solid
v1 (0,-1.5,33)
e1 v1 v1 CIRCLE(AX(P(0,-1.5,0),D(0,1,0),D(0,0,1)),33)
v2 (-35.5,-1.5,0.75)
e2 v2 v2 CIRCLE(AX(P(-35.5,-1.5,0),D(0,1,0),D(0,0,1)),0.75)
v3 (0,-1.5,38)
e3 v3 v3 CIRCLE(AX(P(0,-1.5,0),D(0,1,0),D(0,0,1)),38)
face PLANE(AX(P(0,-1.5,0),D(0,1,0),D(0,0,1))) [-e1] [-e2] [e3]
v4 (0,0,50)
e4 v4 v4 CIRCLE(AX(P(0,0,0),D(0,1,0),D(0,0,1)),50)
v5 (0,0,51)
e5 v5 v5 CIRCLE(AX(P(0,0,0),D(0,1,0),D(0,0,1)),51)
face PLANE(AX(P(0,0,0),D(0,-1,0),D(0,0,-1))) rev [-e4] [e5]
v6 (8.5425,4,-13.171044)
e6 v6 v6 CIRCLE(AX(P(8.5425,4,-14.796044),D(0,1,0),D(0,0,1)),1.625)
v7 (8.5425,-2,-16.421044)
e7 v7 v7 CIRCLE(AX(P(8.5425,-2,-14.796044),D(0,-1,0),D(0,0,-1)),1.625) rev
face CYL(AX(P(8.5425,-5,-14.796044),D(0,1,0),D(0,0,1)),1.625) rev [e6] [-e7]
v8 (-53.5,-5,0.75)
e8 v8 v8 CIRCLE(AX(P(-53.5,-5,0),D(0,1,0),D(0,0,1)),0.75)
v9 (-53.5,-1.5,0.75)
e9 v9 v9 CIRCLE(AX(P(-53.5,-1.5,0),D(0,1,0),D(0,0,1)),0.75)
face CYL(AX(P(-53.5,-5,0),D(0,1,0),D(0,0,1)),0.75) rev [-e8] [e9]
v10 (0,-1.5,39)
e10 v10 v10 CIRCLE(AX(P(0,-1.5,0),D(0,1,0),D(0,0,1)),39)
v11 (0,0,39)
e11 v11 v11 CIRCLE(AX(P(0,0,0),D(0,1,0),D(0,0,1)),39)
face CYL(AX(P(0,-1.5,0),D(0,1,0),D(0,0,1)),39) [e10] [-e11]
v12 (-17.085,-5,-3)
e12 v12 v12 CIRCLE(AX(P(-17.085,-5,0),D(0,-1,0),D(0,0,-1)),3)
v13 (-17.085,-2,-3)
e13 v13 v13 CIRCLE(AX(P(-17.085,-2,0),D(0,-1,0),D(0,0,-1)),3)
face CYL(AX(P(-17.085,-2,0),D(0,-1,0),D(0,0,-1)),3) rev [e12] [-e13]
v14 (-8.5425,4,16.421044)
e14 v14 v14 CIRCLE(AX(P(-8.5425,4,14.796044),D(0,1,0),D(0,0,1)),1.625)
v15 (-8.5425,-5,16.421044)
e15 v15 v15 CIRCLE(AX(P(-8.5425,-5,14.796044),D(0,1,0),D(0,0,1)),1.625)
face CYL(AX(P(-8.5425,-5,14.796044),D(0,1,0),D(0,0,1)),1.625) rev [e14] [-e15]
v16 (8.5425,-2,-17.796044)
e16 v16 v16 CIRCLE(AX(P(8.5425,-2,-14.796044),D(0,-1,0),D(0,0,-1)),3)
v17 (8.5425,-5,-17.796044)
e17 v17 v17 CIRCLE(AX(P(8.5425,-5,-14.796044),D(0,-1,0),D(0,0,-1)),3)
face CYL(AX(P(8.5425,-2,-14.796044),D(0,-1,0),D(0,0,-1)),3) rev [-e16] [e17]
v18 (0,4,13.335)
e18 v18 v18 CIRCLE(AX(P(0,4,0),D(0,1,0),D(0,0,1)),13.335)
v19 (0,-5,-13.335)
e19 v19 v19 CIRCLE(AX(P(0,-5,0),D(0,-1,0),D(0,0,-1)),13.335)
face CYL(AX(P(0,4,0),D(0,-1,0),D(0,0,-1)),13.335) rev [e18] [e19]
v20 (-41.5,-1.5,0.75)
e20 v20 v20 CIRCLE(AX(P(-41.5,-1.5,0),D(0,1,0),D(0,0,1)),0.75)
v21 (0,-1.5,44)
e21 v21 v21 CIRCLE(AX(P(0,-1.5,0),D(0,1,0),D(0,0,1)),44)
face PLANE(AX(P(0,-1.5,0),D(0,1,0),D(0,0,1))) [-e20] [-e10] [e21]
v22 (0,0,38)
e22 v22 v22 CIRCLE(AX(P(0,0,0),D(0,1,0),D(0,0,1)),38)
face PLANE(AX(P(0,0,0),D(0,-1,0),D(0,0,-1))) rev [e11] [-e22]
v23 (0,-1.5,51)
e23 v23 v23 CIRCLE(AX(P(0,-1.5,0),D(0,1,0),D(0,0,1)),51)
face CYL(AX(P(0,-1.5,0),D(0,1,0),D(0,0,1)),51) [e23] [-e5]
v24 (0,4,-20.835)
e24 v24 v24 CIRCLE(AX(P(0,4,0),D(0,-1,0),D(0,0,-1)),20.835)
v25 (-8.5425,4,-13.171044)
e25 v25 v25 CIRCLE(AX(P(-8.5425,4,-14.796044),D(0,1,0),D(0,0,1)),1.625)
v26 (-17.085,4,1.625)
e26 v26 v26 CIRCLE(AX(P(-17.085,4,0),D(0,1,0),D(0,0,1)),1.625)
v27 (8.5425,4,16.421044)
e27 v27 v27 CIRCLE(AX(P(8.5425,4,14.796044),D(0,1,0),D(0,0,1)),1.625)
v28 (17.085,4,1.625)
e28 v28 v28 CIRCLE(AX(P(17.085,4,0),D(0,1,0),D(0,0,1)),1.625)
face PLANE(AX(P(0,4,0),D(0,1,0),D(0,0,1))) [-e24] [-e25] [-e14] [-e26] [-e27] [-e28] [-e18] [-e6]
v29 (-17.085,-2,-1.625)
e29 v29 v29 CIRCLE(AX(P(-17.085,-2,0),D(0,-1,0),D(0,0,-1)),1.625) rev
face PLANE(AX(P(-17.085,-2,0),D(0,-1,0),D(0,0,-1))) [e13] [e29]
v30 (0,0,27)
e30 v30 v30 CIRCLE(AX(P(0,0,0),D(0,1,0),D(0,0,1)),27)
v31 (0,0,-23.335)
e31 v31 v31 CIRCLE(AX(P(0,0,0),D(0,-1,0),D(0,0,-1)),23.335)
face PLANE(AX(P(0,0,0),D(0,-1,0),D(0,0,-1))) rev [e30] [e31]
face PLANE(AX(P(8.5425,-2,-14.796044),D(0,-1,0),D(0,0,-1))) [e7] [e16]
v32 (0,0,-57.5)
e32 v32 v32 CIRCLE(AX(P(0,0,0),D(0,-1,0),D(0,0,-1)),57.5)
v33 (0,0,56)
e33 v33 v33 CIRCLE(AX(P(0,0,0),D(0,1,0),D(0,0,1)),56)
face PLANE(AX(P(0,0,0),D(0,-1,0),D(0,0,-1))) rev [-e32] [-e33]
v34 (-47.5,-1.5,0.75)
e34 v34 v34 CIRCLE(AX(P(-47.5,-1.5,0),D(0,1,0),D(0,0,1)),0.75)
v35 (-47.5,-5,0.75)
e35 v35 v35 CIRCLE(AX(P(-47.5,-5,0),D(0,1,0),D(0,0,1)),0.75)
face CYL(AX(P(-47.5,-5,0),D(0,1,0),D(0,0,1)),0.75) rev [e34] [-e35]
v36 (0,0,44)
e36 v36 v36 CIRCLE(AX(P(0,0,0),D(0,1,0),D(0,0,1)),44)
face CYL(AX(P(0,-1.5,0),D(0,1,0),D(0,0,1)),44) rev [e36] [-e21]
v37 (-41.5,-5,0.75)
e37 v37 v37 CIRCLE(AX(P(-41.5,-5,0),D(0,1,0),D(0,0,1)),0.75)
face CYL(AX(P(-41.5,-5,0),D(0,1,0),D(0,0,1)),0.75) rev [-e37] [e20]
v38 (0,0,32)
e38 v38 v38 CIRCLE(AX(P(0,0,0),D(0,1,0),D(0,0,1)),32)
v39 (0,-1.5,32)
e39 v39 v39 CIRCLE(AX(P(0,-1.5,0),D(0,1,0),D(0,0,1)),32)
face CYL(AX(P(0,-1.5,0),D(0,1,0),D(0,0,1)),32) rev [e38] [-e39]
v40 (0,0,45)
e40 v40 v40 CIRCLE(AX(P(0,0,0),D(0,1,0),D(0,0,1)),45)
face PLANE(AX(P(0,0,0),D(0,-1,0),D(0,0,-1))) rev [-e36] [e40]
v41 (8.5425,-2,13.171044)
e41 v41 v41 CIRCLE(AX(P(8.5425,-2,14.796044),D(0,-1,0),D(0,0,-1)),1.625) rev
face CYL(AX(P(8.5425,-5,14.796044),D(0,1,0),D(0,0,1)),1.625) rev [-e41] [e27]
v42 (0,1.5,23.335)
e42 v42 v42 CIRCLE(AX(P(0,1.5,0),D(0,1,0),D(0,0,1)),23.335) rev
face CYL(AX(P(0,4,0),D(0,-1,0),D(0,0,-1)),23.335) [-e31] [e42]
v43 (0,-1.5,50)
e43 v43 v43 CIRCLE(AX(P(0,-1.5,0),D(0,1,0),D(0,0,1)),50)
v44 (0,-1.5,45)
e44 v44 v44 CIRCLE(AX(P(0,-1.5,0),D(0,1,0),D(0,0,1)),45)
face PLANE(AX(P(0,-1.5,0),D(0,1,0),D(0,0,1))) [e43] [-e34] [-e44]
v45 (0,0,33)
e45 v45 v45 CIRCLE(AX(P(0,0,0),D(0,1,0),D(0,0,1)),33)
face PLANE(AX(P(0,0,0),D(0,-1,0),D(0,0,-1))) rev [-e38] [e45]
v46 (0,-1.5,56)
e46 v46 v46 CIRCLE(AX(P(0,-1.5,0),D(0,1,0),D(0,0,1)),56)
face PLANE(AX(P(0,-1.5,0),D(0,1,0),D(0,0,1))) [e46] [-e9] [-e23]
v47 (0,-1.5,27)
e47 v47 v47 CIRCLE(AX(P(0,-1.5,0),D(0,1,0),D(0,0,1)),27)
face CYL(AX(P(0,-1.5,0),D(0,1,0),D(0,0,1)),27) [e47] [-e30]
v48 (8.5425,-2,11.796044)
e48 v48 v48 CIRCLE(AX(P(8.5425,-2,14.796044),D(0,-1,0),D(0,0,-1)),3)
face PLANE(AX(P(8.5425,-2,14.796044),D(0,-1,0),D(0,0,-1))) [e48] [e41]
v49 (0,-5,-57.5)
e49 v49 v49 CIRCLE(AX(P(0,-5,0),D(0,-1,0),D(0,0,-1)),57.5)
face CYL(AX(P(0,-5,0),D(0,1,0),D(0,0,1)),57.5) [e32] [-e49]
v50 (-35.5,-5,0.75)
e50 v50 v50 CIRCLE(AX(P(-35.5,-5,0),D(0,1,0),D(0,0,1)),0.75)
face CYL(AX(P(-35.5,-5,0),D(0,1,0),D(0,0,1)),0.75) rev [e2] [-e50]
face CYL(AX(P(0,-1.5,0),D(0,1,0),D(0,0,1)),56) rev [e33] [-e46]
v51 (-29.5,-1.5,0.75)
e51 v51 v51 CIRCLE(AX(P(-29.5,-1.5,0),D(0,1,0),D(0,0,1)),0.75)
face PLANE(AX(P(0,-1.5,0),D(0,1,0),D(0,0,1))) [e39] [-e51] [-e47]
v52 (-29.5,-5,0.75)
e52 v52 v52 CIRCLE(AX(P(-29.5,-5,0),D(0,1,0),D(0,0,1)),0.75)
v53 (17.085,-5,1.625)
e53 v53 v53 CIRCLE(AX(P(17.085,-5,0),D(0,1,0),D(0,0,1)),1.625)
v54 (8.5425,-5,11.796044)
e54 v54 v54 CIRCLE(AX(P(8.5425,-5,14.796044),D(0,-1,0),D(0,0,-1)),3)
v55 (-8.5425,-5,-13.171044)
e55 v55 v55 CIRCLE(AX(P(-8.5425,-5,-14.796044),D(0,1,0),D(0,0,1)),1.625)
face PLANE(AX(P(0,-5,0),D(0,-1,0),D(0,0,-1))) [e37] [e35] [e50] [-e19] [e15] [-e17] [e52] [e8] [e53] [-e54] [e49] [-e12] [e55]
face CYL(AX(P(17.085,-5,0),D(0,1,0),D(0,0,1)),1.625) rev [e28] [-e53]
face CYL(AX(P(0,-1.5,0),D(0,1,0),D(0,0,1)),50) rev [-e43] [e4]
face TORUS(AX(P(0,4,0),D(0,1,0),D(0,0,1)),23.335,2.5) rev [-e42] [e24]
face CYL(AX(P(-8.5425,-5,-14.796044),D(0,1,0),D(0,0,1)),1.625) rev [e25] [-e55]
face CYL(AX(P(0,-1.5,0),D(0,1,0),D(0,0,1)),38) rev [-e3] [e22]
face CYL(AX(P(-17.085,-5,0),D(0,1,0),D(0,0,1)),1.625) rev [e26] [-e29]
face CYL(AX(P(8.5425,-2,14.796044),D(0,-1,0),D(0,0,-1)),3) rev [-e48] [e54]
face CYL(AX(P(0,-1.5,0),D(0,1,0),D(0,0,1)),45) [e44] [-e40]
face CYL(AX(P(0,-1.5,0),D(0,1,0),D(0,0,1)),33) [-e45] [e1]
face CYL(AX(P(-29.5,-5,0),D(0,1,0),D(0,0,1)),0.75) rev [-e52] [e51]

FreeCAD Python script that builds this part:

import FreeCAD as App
import Part
import Sketcher

V = App.Vector

doc = App.newDocument("Part")
body = doc.addObject("PartDesign::Body", "Body")

# Sketch on XZ plane
sketch1 = body.newObject("Sketcher::SketchObject", "Sketch")
sketch1.AttachmentSupport = (doc.getObject("XZ_Plane"), [""])
sketch1.MapMode = "FlatFace"
sketch1.addGeometry([
    Part.Circle(V(0, 0, 0), V(0, 0, 1), 23),
    Part.Circle(V(0, 0, 0), V(0, 0, 1), 13),
], False)
sketch1.addConstraint([
    Sketcher.Constraint("Coincident", 0, 3, -1, 1),
    Sketcher.Constraint("Coincident", 1, 3, -1, 1),
    Sketcher.Constraint("Diameter", 0, 46.67),
    Sketcher.Constraint("Diameter", 1, 26.67),
])
pad1 = body.newObject("PartDesign::Pad", "Pad")
pad1.Profile = sketch1
pad1.Length = 4
pad1.Reversed = True

# Sketch on XZ plane
sketch2 = body.newObject("Sketcher::SketchObject", "Sketch001")
sketch2.AttachmentSupport = (doc.getObject("XZ_Plane"), [""])
sketch2.MapMode = "FlatFace"
sketch2.addGeometry([
    Part.Circle(V(0, 0, 0), V(0, 0, 1), 58),
    Part.Circle(V(0, 0, 0), V(0, 0, 1), 13),
], False)
sketch2.addConstraint([
    Sketcher.Constraint("Coincident", 0, 3, -1, 1),
    Sketcher.Constraint("Coincident", 1, 3, -1, 1),
    Sketcher.Constraint("Diameter", 0, 115.0),
    Sketcher.Constraint("Diameter", 1, 26.67),
])
pad2 = body.newObject("PartDesign::Pad", "Pad001")
pad2.Profile = sketch2
pad2.Length = 5

# Sketch on XZ plane
sketch3 = body.newObject("Sketcher::SketchObject", "Sketch002")
sketch3.AttachmentSupport = (doc.getObject("XZ_Plane"), [""])
sketch3.MapMode = "FlatFace"
sketch3.addGeometry([
    Part.Circle(V(0, 0, 0), V(0, 0, 1), 56),  # 0
    Part.Circle(V(0, 0, 0), V(0, 0, 1), 51),  # 1
    Part.Circle(V(0, 0, 0), V(0, 0, 1), 50),  # 2
    Part.Circle(V(0, 0, 0), V(0, 0, 1), 45),  # 3
    Part.Circle(V(0, 0, 0), V(0, 0, 1), 44),  # 4
    Part.Circle(V(0, 0, 0), V(0, 0, 1), 39),  # 5
    Part.Circle(V(0, 0, 0), V(0, 0, 1), 38),  # 6
    Part.Circle(V(0, 0, 0), V(0, 0, 1), 33),  # 7
    Part.Circle(V(0, 0, 0), V(0, 0, 1), 32),  # 8
    Part.Circle(V(0, 0, 0), V(0, 0, 1), 27),  # 9
], False)
sketch3.addConstraint([
    Sketcher.Constraint("Coincident", 0, 3, -1, 1),
    Sketcher.Constraint("Coincident", 1, 3, -1, 1),
    Sketcher.Constraint("Coincident", 2, 3, -1, 1),
    Sketcher.Constraint("Coincident", 3, 3, -1, 1),
    Sketcher.Constraint("Coincident", 4, 3, -1, 1),
    Sketcher.Constraint("Coincident", 5, 3, -1, 1),
    Sketcher.Constraint("Coincident", 6, 3, -1, 1),
    Sketcher.Constraint("Coincident", 7, 3, -1, 1),
    Sketcher.Constraint("Coincident", 8, 3, -1, 1),
    Sketcher.Constraint("Coincident", 9, 3, -1, 1),
    Sketcher.Constraint("Diameter", 0, 112.0),
    Sketcher.Constraint("Diameter", 1, 102.0),
    Sketcher.Constraint("Diameter", 2, 100.0),
    Sketcher.Constraint("Diameter", 3, 90.0),
    Sketcher.Constraint("Diameter", 4, 88.0),
    Sketcher.Constraint("Diameter", 5, 78.0),
    Sketcher.Constraint("Diameter", 6, 76.0),
    Sketcher.Constraint("Diameter", 7, 66.0),
    Sketcher.Constraint("Diameter", 8, 64.0),
    Sketcher.Constraint("Diameter", 9, 54.0),
])
pocket1 = body.newObject("PartDesign::Pocket", "Pocket")
pocket1.Profile = sketch3
pocket1.Length = 1.5
pocket1.Reversed = True

# Sketch on XY plane
sketch4 = body.newObject("Sketcher::SketchObject", "Sketch003")
sketch4.AttachmentSupport = (doc.getObject("XY_Plane"), [""])
sketch4.MapMode = "FlatFace"
sketch4.addGeometry(Part.Circle(V(-23.3, 4, 0), V(0, 0, 1), 2.5), False)
sketch4.addConstraint([
    Sketcher.Constraint("Diameter", 0, 5.0),
    Sketcher.Constraint("DistanceY", -1, 1, 0, 3, 4.0),
    Sketcher.Constraint("DistanceX", 0, 3, -1, 1, 23.335),
])
groove = body.newObject("PartDesign::Groove", "Groove")
groove.Profile = sketch4
groove.ReferenceAxis = (sketch4, ["V_Axis"])
groove.Angle = 360

# Sketch on XZ plane
sketch5 = body.newObject("Sketcher::SketchObject", "Sketch004")
sketch5.AttachmentSupport = (doc.getObject("XZ_Plane"), [""])
sketch5.MapMode = "FlatFace"
sketch5.AttachmentOffset = App.Placement(V(0, 0, -4), App.Rotation())
sketch5.addGeometry([
    Part.Circle(V(-8.5, -14.8, 0), V(0, 0, 1), 1.6),  # 0
    Part.Circle(V(-17.1, 0, 0), V(0, 0, 1), 1.6),  # 1
    Part.Circle(V(-8.5, 14.8, 0), V(0, 0, 1), 1.6),  # 2
    Part.Circle(V(8.5, 14.8, 0), V(0, 0, 1), 1.6),  # 3
    Part.Circle(V(17.1, 0, 0), V(0, 0, 1), 1.6),  # 4
    Part.Circle(V(8.5, -14.8, 0), V(0, 0, 1), 1.6),  # 5
], False)
sketch5.addConstraint([
    Sketcher.Constraint("Equal", 0, 1),
    Sketcher.Constraint("Equal", 1, 2),
    Sketcher.Constraint("Equal", 2, 3),
    Sketcher.Constraint("Equal", 3, 4),
    Sketcher.Constraint("Equal", 4, 5),
    Sketcher.Constraint("Symmetric", 0, 3, 3, 3, -1, 1),
    Sketcher.Constraint("Symmetric", 1, 3, 4, 3, -1, 1),
    Sketcher.Constraint("Symmetric", 2, 3, 5, 3, -1, 1),
    Sketcher.Constraint("Symmetric", 2, 3, 3, 3, -2),
    Sketcher.Constraint("PointOnObject", 1, 3, -1),
    Sketcher.Constraint("Diameter", 0, 3.25),
    Sketcher.Constraint("DistanceX", 1, 3, 4, 3, 34.17),
    Sketcher.Constraint("DistanceX", 2, 3, 3, 3, 17.085),
    Sketcher.Constraint("DistanceY", 0, 3, 2, 3, 29.592088),
])
pocket2 = body.newObject("PartDesign::Pocket", "Pocket001")
pocket2.Profile = sketch5
pocket2.Type = "ThroughAll"
pocket2.Reversed = True

# Sketch on XZ plane
sketch6 = body.newObject("Sketcher::SketchObject", "Sketch005")
sketch6.AttachmentSupport = (doc.getObject("XZ_Plane"), [""])
sketch6.MapMode = "FlatFace"
sketch6.AttachmentOffset = App.Placement(V(0, 0, 1.5), App.Rotation())
sketch6.addGeometry([
    Part.Circle(V(-53.5, 0, 0), V(0, 0, 1), 0.8),  # 0
    Part.Circle(V(-47.5, 0, 0), V(0, 0, 1), 0.8),  # 1
    Part.Circle(V(-41.5, 0, 0), V(0, 0, 1), 0.8),  # 2
    Part.Circle(V(-35.5, 0, 0), V(0, 0, 1), 0.8),  # 3
    Part.Circle(V(-29.5, 0, 0), V(0, 0, 1), 0.8),  # 4
], False)
sketch6.addConstraint([
    Sketcher.Constraint("Equal", 0, 1),
    Sketcher.Constraint("Equal", 1, 2),
    Sketcher.Constraint("Equal", 2, 3),
    Sketcher.Constraint("Equal", 3, 4),
    Sketcher.Constraint("PointOnObject", 0, 3, -1),
    Sketcher.Constraint("PointOnObject", 1, 3, -1),
    Sketcher.Constraint("PointOnObject", 2, 3, -1),
    Sketcher.Constraint("PointOnObject", 3, 3, -1),
    Sketcher.Constraint("PointOnObject", 4, 3, -1),
    Sketcher.Constraint("Diameter", 0, 1.5),
    Sketcher.Constraint("DistanceX", 0, 3, 1, 3, 6.0),
    Sketcher.Constraint("DistanceX", 1, 3, 2, 3, 6.0),
    Sketcher.Constraint("DistanceX", 2, 3, 3, 3, 6.0),
    Sketcher.Constraint("DistanceX", 3, 3, 4, 3, 6.0),
    Sketcher.Constraint("DistanceX", 0, 3, -1, 1, 53.5),
])
pocket3 = body.newObject("PartDesign::Pocket", "Pocket002")
pocket3.Profile = sketch6
pocket3.Type = "ThroughAll"
pocket3.Reversed = True

# Sketch on XZ plane
sketch7 = body.newObject("Sketcher::SketchObject", "Sketch006")
sketch7.AttachmentSupport = (doc.getObject("XZ_Plane"), [""])
sketch7.MapMode = "FlatFace"
sketch7.AttachmentOffset = App.Placement(V(0, 0, 5), App.Rotation())
sketch7.addGeometry([
    Part.Circle(V(-17.1, 0, 0), V(0, 0, 1), 3),
    Part.Circle(V(8.5, -14.8, 0), V(0, 0, 1), 3),
    Part.Circle(V(8.5, 14.8, 0), V(0, 0, 1), 3),
], False)
sketch7.addConstraint([
    Sketcher.Constraint("Equal", 0, 1),
    Sketcher.Constraint("Equal", 1, 2),
    Sketcher.Constraint("Symmetric", 1, 3, 2, 3, -1),
    Sketcher.Constraint("PointOnObject", 0, 3, -1),
    Sketcher.Constraint("Diameter", 0, 6.0),
    Sketcher.Constraint("DistanceX", 0, 3, -1, 1, 17.085),
    Sketcher.Constraint("DistanceX", -1, 1, 1, 3, 8.5425),
    Sketcher.Constraint("DistanceY", 1, 3, 2, 3, 29.592088),
])
pocket4 = body.newObject("PartDesign::Pocket", "Pocket003")
pocket4.Profile = sketch7
pocket4.Length = 3

doc.recompute()
